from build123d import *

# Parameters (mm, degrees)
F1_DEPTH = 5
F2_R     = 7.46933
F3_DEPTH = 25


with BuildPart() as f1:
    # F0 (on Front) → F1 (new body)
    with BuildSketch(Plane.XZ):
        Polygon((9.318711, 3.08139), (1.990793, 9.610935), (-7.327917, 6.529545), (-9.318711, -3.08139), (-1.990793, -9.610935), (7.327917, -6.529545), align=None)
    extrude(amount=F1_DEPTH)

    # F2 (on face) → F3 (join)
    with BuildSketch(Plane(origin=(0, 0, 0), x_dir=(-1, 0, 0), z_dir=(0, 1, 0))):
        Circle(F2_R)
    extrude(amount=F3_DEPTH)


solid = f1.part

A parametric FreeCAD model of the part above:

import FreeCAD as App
import Part
import Sketcher

V = App.Vector


def add_polygon(sketch, points):
    """Adds a closed chain of lines whose ends are joined by coincident constraints."""
    first, n = sketch.GeometryCount, len(points)
    for a, b in zip(points, points[1:] + points[:1]):
        sketch.addGeometry(Part.LineSegment(App.Vector(*a, 0), App.Vector(*b, 0)), False)
    for i in range(n):
        sketch.addConstraint(Sketcher.Constraint("Coincident", first + i, 2, first + (i + 1) % n, 1))

doc = App.newDocument("Part")
body = doc.addObject("PartDesign::Body", "Body")

# Sketch on XZ plane
sketch1 = doc.addObject("Sketcher::SketchObject", "Sketch")
body.addObject(sketch1)
sketch1.AttachmentSupport = (doc.XZ_Plane, [""])
sketch1.MapMode = "FlatFace"
add_polygon(sketch1, [(9.318711, 3.08139), (1.990793, 9.610935), (-7.327917, 6.529545), (-9.318711, -3.08139), (-1.990793, -9.610935), (7.327917, -6.529545)])  # lines 0-5
sketch1.addConstraint([
    Sketcher.Constraint("Symmetric", 0, 2, 3, 2, -1, 1),
    Sketcher.Constraint("Symmetric", 1, 2, 4, 2, -1, 1),
    Sketcher.Constraint("Symmetric", 2, 2, 5, 2, -1, 1),
    Sketcher.Constraint("Equal", 0, 1),
    Sketcher.Constraint("Equal", 1, 2),
    Sketcher.Constraint("DistanceX", 2, 2, -1, 1, 9.318711),
    Sketcher.Constraint("DistanceY", 2, 2, -1, 1, 3.08139),
    Sketcher.Constraint("DistanceX", 1, 2, 0, 2, 9.31871),
    Sketcher.Constraint("DistanceY", 1, 2, 0, 2, 3.08139),
])
pad1 = doc.addObject("PartDesign::Pad", "Pad")
body.addObject(pad1)
pad1.Profile = sketch1
pad1.Length = 5

# Sketch on XZ plane
sketch2 = doc.addObject("Sketcher::SketchObject", "Sketch001")
body.addObject(sketch2)
sketch2.AttachmentSupport = (doc.XZ_Plane, [""])
sketch2.MapMode = "FlatFace"
sketch2.addGeometry(Part.Circle(V(0, 0, 0), V(0, 0, 1), 7.46933), False)
sketch2.addConstraint([
    Sketcher.Constraint("Coincident", 0, 3, -1, 1),
    Sketcher.Constraint("Diameter", 0, 14.93866),
])
pad2 = doc.addObject("PartDesign::Pad", "Pad001")
body.addObject(pad2)
pad2.Profile = sketch2
pad2.Length = 25
pad2.Reversed = True

doc.recompute()
